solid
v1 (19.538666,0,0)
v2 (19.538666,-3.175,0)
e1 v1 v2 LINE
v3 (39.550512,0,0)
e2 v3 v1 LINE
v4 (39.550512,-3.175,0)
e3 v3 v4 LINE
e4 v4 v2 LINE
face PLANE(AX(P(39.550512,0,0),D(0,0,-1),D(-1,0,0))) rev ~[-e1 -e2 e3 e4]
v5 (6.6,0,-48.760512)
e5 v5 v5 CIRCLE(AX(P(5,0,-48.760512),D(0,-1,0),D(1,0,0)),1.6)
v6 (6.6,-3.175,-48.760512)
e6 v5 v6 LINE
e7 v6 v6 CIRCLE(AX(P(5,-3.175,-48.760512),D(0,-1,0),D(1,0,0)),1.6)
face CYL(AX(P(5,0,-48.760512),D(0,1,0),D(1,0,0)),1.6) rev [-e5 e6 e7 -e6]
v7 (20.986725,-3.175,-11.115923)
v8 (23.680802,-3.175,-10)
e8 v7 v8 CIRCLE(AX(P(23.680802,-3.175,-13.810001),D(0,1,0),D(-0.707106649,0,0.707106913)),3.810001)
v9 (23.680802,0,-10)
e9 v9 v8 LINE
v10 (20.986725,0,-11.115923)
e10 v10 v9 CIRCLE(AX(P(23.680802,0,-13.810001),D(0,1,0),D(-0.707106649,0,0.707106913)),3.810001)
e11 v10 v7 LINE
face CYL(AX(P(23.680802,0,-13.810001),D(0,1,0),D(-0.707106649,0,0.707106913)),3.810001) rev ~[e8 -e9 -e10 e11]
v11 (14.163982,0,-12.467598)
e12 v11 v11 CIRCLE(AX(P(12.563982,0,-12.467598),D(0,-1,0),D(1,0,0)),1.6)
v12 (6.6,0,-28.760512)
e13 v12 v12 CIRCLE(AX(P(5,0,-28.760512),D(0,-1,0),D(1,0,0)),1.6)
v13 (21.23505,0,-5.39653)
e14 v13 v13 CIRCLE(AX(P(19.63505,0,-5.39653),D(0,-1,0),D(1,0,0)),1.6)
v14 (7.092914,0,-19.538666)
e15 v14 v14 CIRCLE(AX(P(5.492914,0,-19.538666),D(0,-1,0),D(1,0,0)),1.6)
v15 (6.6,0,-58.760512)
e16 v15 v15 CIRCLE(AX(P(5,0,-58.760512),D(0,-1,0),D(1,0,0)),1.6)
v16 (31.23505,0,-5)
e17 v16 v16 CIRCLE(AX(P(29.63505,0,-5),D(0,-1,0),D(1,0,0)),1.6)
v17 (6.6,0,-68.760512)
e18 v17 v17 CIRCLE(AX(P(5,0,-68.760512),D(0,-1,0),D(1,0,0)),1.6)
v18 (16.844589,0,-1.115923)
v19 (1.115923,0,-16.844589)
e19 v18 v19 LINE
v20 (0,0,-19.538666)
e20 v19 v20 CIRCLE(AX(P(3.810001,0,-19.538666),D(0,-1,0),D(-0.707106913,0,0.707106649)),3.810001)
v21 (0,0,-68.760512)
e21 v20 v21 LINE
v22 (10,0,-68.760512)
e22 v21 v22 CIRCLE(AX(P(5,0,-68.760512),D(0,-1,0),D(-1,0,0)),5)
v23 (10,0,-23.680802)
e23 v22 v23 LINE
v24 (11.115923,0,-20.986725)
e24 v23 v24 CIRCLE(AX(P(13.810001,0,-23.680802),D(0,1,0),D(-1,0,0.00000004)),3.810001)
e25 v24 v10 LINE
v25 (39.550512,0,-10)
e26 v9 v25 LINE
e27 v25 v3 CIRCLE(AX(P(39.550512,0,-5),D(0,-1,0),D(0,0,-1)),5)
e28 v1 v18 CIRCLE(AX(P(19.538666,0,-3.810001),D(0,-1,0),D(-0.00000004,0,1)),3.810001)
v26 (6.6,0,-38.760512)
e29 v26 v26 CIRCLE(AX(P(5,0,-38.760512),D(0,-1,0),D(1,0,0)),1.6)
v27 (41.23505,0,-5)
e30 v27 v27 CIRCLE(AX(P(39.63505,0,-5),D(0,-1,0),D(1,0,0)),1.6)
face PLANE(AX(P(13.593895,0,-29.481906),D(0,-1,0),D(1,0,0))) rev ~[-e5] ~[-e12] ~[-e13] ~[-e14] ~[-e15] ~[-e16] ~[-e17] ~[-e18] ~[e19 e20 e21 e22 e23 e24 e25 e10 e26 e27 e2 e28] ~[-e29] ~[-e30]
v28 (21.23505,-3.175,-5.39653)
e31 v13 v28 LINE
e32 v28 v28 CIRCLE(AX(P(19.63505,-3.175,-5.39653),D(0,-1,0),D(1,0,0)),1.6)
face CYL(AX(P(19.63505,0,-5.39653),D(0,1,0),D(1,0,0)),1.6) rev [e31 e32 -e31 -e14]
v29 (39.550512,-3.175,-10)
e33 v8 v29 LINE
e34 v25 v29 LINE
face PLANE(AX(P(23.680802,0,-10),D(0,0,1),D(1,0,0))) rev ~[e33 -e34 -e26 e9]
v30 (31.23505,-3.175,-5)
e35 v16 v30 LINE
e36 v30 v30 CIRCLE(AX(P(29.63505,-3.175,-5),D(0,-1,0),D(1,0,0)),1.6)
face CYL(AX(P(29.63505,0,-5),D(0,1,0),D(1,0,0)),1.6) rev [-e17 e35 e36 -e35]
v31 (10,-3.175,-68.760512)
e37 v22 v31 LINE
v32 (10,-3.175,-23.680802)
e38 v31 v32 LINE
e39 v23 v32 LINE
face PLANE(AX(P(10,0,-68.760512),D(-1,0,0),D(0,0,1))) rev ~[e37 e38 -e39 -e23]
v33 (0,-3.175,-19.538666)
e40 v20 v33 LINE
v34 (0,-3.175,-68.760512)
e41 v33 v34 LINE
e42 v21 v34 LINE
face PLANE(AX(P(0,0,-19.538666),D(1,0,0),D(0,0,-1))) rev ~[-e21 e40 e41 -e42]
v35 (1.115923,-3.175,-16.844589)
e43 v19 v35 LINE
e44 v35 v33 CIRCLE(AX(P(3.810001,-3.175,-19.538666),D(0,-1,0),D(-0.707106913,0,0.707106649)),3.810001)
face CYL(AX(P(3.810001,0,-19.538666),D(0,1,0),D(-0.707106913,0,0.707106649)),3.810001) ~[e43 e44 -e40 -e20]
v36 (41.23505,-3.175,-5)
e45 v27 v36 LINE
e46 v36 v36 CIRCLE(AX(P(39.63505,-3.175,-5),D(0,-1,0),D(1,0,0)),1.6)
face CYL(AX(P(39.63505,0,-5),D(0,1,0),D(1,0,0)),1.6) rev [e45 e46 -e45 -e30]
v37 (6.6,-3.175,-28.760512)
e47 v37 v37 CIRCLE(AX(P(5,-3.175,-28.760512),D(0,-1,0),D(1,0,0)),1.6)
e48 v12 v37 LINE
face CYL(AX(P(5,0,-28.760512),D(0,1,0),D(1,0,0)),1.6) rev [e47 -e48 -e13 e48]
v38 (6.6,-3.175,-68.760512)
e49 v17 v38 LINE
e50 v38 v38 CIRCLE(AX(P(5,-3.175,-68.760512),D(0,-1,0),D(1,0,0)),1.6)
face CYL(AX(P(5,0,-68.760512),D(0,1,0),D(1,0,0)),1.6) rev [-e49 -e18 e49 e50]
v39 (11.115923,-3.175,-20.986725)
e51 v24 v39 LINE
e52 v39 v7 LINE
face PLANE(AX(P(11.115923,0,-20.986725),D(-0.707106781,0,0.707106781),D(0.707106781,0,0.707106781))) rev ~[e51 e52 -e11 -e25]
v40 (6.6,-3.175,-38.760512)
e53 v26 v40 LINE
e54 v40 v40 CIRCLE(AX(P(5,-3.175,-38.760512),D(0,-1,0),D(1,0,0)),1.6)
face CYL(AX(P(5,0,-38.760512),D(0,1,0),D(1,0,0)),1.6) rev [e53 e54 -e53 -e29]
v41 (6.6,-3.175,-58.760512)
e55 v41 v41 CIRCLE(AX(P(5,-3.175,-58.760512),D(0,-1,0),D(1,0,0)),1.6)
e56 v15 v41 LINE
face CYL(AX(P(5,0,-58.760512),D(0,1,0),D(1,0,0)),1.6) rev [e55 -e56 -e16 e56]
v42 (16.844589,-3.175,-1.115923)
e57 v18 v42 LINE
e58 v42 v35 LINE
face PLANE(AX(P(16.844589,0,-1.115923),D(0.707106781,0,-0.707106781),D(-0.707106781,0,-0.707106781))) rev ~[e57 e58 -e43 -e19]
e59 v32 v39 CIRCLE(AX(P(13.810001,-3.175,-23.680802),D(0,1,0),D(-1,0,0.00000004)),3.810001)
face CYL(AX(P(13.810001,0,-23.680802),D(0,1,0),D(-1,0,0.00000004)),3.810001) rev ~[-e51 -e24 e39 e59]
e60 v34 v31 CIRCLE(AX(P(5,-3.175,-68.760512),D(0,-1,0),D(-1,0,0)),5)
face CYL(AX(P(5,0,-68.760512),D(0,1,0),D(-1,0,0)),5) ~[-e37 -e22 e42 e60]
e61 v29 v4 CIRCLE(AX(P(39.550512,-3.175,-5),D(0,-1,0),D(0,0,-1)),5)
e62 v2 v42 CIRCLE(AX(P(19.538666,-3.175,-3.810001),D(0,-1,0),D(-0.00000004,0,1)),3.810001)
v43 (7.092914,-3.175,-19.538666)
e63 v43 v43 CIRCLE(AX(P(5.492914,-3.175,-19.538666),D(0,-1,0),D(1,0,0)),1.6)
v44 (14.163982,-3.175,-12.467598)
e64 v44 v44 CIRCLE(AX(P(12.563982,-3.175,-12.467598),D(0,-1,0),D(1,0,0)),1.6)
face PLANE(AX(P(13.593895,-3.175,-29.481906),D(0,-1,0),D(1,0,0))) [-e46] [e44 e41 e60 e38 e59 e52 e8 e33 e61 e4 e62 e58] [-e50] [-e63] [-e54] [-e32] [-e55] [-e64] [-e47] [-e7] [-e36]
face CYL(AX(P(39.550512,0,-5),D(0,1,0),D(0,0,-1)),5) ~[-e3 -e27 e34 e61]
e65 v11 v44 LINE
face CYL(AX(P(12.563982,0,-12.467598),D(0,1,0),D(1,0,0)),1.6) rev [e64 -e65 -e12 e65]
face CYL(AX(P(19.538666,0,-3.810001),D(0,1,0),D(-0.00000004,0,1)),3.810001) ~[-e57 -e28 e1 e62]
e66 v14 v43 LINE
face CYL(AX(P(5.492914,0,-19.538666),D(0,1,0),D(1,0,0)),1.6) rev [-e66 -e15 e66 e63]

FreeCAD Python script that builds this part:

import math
import FreeCAD as App
import Part
import Sketcher
from FreeCAD import Vector
Q = App.Units.Quantity

doc = App.newDocument("Part")
body = doc.addObject("PartDesign::Body", "Body")

# Sketch on XZ plane
sketch1 = doc.addObject("Sketcher::SketchObject", "Sketch")
body.addObject(sketch1)
sketch1.AttachmentSupport = (doc.XZ_Plane, [""])
sketch1.MapMode = "FlatFace"
sketch1.addGeometry([
    Part.LineSegment(Vector(0, -19.5, 0), Vector(0, -68.8, 0)),  # 0
    Part.ArcOfCircle(Part.Circle(Vector(5, -68.8, 0), Vector(0, 0, 1), 5), math.radians(180), math.radians(360)),  # 1
    Part.LineSegment(Vector(10, -68.8, 0), Vector(10, -23.7, 0)),  # 2
    Part.ArcOfCircle(Part.Circle(Vector(13.8, -23.7, 0), Vector(0, 0, 1), 3.8), math.radians(135), math.radians(180)),  # 3
    Part.LineSegment(Vector(11.1, -21, 0), Vector(21, -11.1, 0)),  # 4
    Part.ArcOfCircle(Part.Circle(Vector(23.7, -13.8, 0), Vector(0, 0, 1), 3.8), math.radians(90), math.radians(135)),  # 5
    Part.LineSegment(Vector(23.7, -10, 0), Vector(39.6, -10, 0)),  # 6
    Part.ArcOfCircle(Part.Circle(Vector(39.6, -5, 0), Vector(0, 0, 1), 5), math.radians(-90), math.radians(90)),  # 7
    Part.LineSegment(Vector(39.6, 0, 0), Vector(19.5, 0, 0)),  # 8
    Part.ArcOfCircle(Part.Circle(Vector(19.5, -3.8, 0), Vector(0, 0, 1), 3.8), math.radians(90), math.radians(135)),  # 9
    Part.LineSegment(Vector(16.8, -1.1, 0), Vector(1.1, -16.8, 0)),  # 10
    Part.ArcOfCircle(Part.Circle(Vector(3.8, -19.5, 0), Vector(0, 0, 1), 3.8), math.radians(135), math.radians(180)),  # 11
    Part.Circle(Vector(5, -68.8, 0), Vector(0, 0, 1), 1.6),  # 12
    Part.Circle(Vector(5, -58.8, 0), Vector(0, 0, 1), 1.6),  # 13
    Part.Circle(Vector(5, -48.8, 0), Vector(0, 0, 1), 1.6),  # 14
    Part.Circle(Vector(5, -38.8, 0), Vector(0, 0, 1), 1.6),  # 15
    Part.Circle(Vector(5, -28.8, 0), Vector(0, 0, 1), 1.6),  # 16
    Part.Circle(Vector(5.5, -19.5, 0), Vector(0, 0, 1), 1.6),  # 17
    Part.Circle(Vector(12.6, -12.5, 0), Vector(0, 0, 1), 1.6),  # 18
    Part.Circle(Vector(19.6, -5.4, 0), Vector(0, 0, 1), 1.6),  # 19
    Part.Circle(Vector(29.6, -5, 0), Vector(0, 0, 1), 1.6),  # 20
    Part.Circle(Vector(39.6, -5, 0), Vector(0, 0, 1), 1.6),  # 21
], False)
sketch1.addConstraint([
    Sketcher.Constraint("Tangent", 0, 2, 1, 1),
    Sketcher.Constraint("Tangent", 1, 2, 2, 1),
    Sketcher.Constraint("Tangent", 2, 2, 3, 2),
    Sketcher.Constraint("Tangent", 3, 1, 4, 1),
    Sketcher.Constraint("Tangent", 4, 2, 5, 2),
    Sketcher.Constraint("Tangent", 5, 1, 6, 1),
    Sketcher.Constraint("Tangent", 6, 2, 7, 1),
    Sketcher.Constraint("Tangent", 7, 2, 8, 1),
    Sketcher.Constraint("Tangent", 8, 2, 9, 1),
    Sketcher.Constraint("Tangent", 9, 2, 10, 1),
    Sketcher.Constraint("Tangent", 10, 2, 11, 1),
    Sketcher.Constraint("Tangent", 11, 2, 0, 1),
    Sketcher.Constraint("Vertical", 0),
    Sketcher.Constraint("Vertical", 2),
    Sketcher.Constraint("Horizontal", 6),
    Sketcher.Constraint("Horizontal", 8),
    Sketcher.Constraint("Coincident", 12, 3, 1, 3),
    Sketcher.Constraint("Equal", 3, 5),
    Sketcher.Constraint("Equal", 1, 7),
    Sketcher.Constraint("Equal", 5, 9),
    Sketcher.Constraint("Equal", 9, 11),
    Sketcher.Constraint("Equal", 12, 13),
    Sketcher.Constraint("Equal", 13, 14),
    Sketcher.Constraint("Equal", 14, 15),
    Sketcher.Constraint("Equal", 15, 16),
    Sketcher.Constraint("Equal", 16, 17),
    Sketcher.Constraint("Equal", 17, 18),
    Sketcher.Constraint("Equal", 18, 19),
    Sketcher.Constraint("Equal", 19, 20),
    Sketcher.Constraint("Equal", 20, 21),
    Sketcher.Constraint("PointOnObject", 0, 2, -2),
    Sketcher.Constraint("PointOnObject", 7, 2, -1),
    Sketcher.Constraint("Parallel", 4, 10),
    Sketcher.Constraint("Horizontal", 11, 3, 17, 3),
    Sketcher.Constraint("Horizontal", 7, 3, 20, 3),
    Sketcher.Constraint("Horizontal", 20, 3, 21, 3),
    Sketcher.Constraint("Vertical", 12, 3, 13, 3),
    Sketcher.Constraint("Vertical", 13, 3, 14, 3),
    Sketcher.Constraint("Vertical", 14, 3, 15, 3),
    Sketcher.Constraint("Vertical", 15, 3, 16, 3),
    Sketcher.Constraint("Radius", 1, Q("5 mm")),
    Sketcher.Constraint("Diameter", 12, Q("3.2 mm")),
    Sketcher.Constraint("Angle", 4, Q("45 deg")),
    Sketcher.Constraint("Radius", 3, Q("3.810001 mm")),
    Sketcher.Constraint("DistanceY", 1, 3, 13, 3, Q("10 mm")),
    Sketcher.Constraint("DistanceY", 13, 3, 14, 3, Q("10 mm")),
    Sketcher.Constraint("DistanceY", 14, 3, 15, 3, Q("10 mm")),
    Sketcher.Constraint("DistanceY", 15, 3, 16, 3, Q("10 mm")),
    Sketcher.Constraint("DistanceX", 19, 3, 20, 3, Q("10 mm")),
    Sketcher.Constraint("DistanceX", 20, 3, 21, 3, Q("10 mm")),
    Sketcher.Constraint("DistanceX", 6, 1, 6, 2, Q("15.86971 mm")),
    Sketcher.Constraint("DistanceY", 2, 1, 2, 2, Q("45.07971 mm")),
    Sketcher.Constraint("DistanceY", 18, 3, -1, 1, Q("12.467598 mm")),
    Sketcher.Constraint("DistanceY", 2, 2, -1, 1, Q("23.680802 mm")),
    Sketcher.Constraint("DistanceX", 8, 2, 8, 1, Q("20.011846 mm")),
    Sketcher.Constraint("DistanceX", -1, 1, 18, 3, Q("12.563982 mm")),
    Sketcher.Constraint("DistanceX", -1, 1, 19, 3, Q("19.63505 mm")),
    Sketcher.Constraint("DistanceY", 19, 3, -1, 1, Q("5.39653 mm")),
    Sketcher.Constraint("DistanceX", 17, 3, 5, 3, Q("18.187888 mm")),
])
pad1 = doc.addObject("PartDesign::Pad", "Pad")
body.addObject(pad1)
pad1.Profile = sketch1
pad1.Length = 3.175

doc.recompute()
